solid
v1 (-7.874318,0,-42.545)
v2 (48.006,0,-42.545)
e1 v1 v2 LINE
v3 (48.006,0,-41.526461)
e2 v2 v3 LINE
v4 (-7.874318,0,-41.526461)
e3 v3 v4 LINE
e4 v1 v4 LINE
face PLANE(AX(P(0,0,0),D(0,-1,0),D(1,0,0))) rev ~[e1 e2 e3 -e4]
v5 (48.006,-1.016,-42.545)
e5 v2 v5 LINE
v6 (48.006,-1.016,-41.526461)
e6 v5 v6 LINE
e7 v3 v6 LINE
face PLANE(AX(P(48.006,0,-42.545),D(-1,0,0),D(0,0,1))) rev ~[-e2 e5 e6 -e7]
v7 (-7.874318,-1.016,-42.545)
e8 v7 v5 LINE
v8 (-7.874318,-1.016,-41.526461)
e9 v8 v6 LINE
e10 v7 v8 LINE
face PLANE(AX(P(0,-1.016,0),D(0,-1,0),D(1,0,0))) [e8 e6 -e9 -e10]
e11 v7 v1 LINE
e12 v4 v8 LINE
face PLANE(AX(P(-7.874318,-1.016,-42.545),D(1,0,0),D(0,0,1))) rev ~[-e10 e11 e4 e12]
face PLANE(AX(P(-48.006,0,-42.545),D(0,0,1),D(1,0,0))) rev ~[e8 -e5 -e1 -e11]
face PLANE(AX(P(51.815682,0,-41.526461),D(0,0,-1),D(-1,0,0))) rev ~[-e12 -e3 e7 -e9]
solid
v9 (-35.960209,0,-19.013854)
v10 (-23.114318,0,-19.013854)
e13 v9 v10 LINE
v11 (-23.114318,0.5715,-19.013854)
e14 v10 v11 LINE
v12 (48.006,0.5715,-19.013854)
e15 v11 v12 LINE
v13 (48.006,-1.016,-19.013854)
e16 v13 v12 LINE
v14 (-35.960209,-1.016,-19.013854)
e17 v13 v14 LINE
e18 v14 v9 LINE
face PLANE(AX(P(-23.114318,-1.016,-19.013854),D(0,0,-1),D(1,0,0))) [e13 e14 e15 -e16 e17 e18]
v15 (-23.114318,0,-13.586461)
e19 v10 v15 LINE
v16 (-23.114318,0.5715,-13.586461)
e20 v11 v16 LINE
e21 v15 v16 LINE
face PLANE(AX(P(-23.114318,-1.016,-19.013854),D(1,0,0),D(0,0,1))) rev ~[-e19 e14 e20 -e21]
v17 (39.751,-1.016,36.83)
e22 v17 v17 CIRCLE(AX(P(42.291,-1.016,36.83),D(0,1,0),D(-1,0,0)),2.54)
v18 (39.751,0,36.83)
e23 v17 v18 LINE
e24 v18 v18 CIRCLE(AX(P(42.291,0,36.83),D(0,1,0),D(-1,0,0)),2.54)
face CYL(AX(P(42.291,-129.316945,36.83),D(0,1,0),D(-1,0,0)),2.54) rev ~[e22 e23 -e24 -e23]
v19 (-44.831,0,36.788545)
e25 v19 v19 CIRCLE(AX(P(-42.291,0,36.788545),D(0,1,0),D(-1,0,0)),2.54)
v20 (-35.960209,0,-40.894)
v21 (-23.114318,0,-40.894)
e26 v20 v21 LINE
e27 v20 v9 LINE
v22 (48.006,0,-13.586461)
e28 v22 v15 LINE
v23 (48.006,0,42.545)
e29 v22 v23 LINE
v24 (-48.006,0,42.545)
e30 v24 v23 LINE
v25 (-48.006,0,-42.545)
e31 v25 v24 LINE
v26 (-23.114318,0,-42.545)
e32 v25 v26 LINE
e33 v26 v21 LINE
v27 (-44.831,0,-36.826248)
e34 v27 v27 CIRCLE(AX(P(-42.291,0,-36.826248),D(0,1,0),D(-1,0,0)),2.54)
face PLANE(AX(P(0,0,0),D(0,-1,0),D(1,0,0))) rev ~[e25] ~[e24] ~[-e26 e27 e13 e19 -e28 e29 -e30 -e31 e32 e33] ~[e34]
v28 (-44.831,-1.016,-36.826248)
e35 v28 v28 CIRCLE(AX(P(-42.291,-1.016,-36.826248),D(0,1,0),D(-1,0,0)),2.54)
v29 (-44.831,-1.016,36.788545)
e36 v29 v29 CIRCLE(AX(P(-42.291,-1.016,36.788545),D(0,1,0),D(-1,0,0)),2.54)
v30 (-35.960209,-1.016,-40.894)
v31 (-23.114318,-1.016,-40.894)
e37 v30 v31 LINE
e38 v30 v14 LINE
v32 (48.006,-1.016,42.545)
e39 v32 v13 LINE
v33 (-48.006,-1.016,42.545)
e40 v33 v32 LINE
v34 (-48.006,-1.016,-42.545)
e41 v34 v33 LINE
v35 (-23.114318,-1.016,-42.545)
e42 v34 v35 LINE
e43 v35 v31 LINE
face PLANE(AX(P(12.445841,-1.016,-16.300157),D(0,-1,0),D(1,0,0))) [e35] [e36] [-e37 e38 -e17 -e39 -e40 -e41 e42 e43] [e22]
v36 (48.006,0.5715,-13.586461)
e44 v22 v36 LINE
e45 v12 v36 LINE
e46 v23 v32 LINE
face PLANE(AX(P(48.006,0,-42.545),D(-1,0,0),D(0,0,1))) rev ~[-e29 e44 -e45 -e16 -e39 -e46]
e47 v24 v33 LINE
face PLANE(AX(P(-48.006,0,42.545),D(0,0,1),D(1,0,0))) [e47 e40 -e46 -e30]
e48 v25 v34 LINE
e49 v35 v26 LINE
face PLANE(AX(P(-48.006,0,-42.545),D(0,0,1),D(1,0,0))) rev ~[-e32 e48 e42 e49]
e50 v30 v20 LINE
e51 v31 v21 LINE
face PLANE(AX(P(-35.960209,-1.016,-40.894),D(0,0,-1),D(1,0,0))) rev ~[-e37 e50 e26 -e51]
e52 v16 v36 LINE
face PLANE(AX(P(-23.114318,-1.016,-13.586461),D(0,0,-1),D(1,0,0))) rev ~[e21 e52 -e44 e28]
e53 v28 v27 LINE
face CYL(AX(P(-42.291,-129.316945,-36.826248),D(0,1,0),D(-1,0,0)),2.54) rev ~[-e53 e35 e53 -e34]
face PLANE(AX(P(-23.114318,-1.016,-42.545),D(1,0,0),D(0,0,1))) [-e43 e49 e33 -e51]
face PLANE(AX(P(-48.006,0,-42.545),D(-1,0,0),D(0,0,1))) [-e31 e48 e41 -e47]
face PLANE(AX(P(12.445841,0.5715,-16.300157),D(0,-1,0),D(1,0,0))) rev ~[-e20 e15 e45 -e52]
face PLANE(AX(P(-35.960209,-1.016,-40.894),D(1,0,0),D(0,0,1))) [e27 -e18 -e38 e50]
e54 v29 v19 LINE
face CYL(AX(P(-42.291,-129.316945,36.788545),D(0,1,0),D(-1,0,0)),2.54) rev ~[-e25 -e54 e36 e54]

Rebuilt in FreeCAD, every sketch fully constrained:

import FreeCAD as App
import Part
import Sketcher
from FreeCAD import Vector
Q = App.Units.Quantity


def add_polygon(sketch, points):
    """Adds a closed chain of lines whose ends are joined by coincident constraints."""
    first, n = sketch.GeometryCount, len(points)
    for a, b in zip(points, points[1:] + points[:1]):
        sketch.addGeometry(Part.LineSegment(App.Vector(*a, 0), App.Vector(*b, 0)), False)
    for i in range(n):
        sketch.addConstraint(Sketcher.Constraint("Coincident", first + i, 2, first + (i + 1) % n, 1))

doc = App.newDocument("Part")
params = doc.addObject("Spreadsheet::Sheet", "Params")
for row, (alias, value) in enumerate([
    ("sketch1_width", "3.78 in"),
    ("sketch1_height", "3.35 in"),
    ("pad1_length", "0.04 in"),
    ("sketch2_height", "1.1 in"),
    ("sketch2_width", "2.35 in"),
    ("pocket1_length", "1 in"),
    ("sketch3_width", "0.6 in"),
    ("pocket2_length", "1 in"),
    ("pad2_length", "0.0625 in"),
    ("pocket3_length", "0.125 in"),
    ("sketch6_diameter", "0.2 in"),
    ("hole_diameter", "0.2 in"),
], start=1):
    params.set(f"A{row}", alias)
    params.set(f"B{row}", "=" + value)
    params.setAlias(f"B{row}", alias)

body = doc.addObject("PartDesign::Body", "Body")
body.AllowCompound = True

# Sketch on XZ plane
sketch1 = body.newObject("Sketcher::SketchObject", "Sketch")
sketch1.AttachmentSupport = (doc.getObject("XZ_Plane"), [""])
sketch1.MapMode = "FlatFace"
add_polygon(sketch1, [(-48.006, 42.545), (-48.006, -42.545), (48.006, -42.545), (48.006, 42.545)])  # lines 0-3
sketch1.addConstraint(Sketcher.Constraint("Vertical", 0))
sketch1.addConstraint(Sketcher.Constraint("Horizontal", 1))
sketch1.addConstraint(Sketcher.Constraint("Vertical", 2))
sketch1.addConstraint(Sketcher.Constraint("Horizontal", 3))
sketch1.addConstraint(Sketcher.Constraint("Symmetric", 0, 2, 2, 2, -1, 1))
sketch1.addConstraint(Sketcher.Constraint("DistanceX", 1, 1, 1, 2, Q("3.78 in")))
sketch1.addConstraint(Sketcher.Constraint("DistanceY", 0, 2, 0, 1, Q("3.35 in")))
sketch1.setExpression("Constraints[9]", "Params.sketch1_width")
sketch1.setExpression("Constraints[10]", "Params.sketch1_height")
pad1 = body.newObject("PartDesign::Pad", "Pad")
pad1.Profile = sketch1
pad1.setExpression("Length", "Params.pad1_length")

# Sketch on XZ plane
sketch2 = body.newObject("Sketcher::SketchObject", "Sketch001")
sketch2.AttachmentSupport = (doc.getObject("XZ_Plane"), [""])
sketch2.MapMode = "FlatFace"
add_polygon(sketch2, [(51.815682, -13.586461), (51.815682, -41.526461), (-7.874318, -41.526461), (-7.874318, -13.586461)])  # lines 0-3
sketch2.addConstraint(Sketcher.Constraint("Vertical", 0))
sketch2.addConstraint(Sketcher.Constraint("Horizontal", 1))
sketch2.addConstraint(Sketcher.Constraint("Vertical", 2))
sketch2.addConstraint(Sketcher.Constraint("Horizontal", 3))
sketch2.addConstraint(Sketcher.Constraint("DistanceY", 0, 2, 0, 1, Q("1.1 in")))
sketch2.addConstraint(Sketcher.Constraint("DistanceX", 1, 2, 1, 1, Q("2.35 in")))
sketch2.addConstraint(Sketcher.Constraint("DistanceY", 0, 2, -1, 1, Q("1.6349 in")))
sketch2.addConstraint(Sketcher.Constraint("DistanceX", -1, 1, 0, 2, 51.815682))
sketch2.setExpression("Constraints[8]", "Params.sketch2_height")
sketch2.setExpression("Constraints[9]", "Params.sketch2_width")
pocket1 = body.newObject("PartDesign::Pocket", "Pocket")
pocket1.Profile = sketch2
pocket1.setExpression("Length", "Params.pocket1_length")
pocket1.Reversed = True

# Sketch on XZ plane
sketch3 = body.newObject("Sketcher::SketchObject", "Sketch002")
sketch3.AttachmentSupport = (doc.getObject("XZ_Plane"), [""])
sketch3.MapMode = "FlatFace"
sketch3.AttachmentOffset = App.Placement(Vector(0, 0, 0.04 * 25.4), App.Rotation())
add_polygon(sketch3, [(-23.114318, -13.586461), (-23.114318, -42.545), (-7.874318, -42.545), (-7.874318, -13.586461)])  # lines 0-3
sketch3.addConstraint(Sketcher.Constraint("Vertical", 0))
sketch3.addConstraint(Sketcher.Constraint("Horizontal", 1))
sketch3.addConstraint(Sketcher.Constraint("Vertical", 2))
sketch3.addConstraint(Sketcher.Constraint("Horizontal", 3))
sketch3.addConstraint(Sketcher.Constraint("DistanceX", 1, 1, 1, 2, Q("0.6 in")))
sketch3.addConstraint(Sketcher.Constraint("DistanceY", 0, 2, 0, 1, Q("1.1401 in")))
sketch3.addConstraint(Sketcher.Constraint("DistanceY", 0, 2, -1, 1, Q("1.675 in")))
sketch3.addConstraint(Sketcher.Constraint("DistanceX", 0, 2, -1, 1, 23.114318))
sketch3.setExpression("Constraints[8]", "Params.sketch3_width")
pocket2 = body.newObject("PartDesign::Pocket", "Pocket001")
pocket2.Profile = sketch3
pocket2.setExpression("Length", "Params.pocket2_length")

# Sketch on XZ plane
sketch4 = body.newObject("Sketcher::SketchObject", "Sketch003")
sketch4.AttachmentSupport = (doc.getObject("XZ_Plane"), [""])
sketch4.MapMode = "FlatFace"
sketch4.AttachmentOffset = App.Placement(Vector(0, 0, 0.04 * 25.4), App.Rotation())
add_polygon(sketch4, [(-23.114318, -13.586461), (-23.114318, -19.013854), (48.006, -19.013854), (48.006, -13.586461)])  # lines 0-3
sketch4.addConstraint(Sketcher.Constraint("Vertical", 0))
sketch4.addConstraint(Sketcher.Constraint("Horizontal", 1))
sketch4.addConstraint(Sketcher.Constraint("Vertical", 2))
sketch4.addConstraint(Sketcher.Constraint("Horizontal", 3))
sketch4.addConstraint(Sketcher.Constraint("DistanceX", -1, 1, 1, 2, Q("1.89 in")))
sketch4.addConstraint(Sketcher.Constraint("DistanceY", 2, 2, -1, 1, Q("0.5349 in")))
sketch4.addConstraint(Sketcher.Constraint("DistanceX", 1, 1, 1, 2, 71.120318))
sketch4.addConstraint(Sketcher.Constraint("DistanceY", 0, 2, 0, 1, 5.427393))
pad2 = body.newObject("PartDesign::Pad", "Pad001")
pad2.Profile = sketch4
pad2.setExpression("Length", "Params.pad2_length")
pad2.Reversed = True

# Sketch on XZ plane
sketch5 = body.newObject("Sketcher::SketchObject", "Sketch004")
sketch5.AttachmentSupport = (doc.getObject("XZ_Plane"), [""])
sketch5.MapMode = "FlatFace"
sketch5.AttachmentOffset = App.Placement(Vector(0, 0, 0.04 * 25.4), App.Rotation())
add_polygon(sketch5, [(-35.960209, -19.013854), (-35.960209, -40.894), (-23.114318, -40.894), (-23.114318, -19.013854)])  # lines 0-3
sketch5.addConstraint(Sketcher.Constraint("Vertical", 0))
sketch5.addConstraint(Sketcher.Constraint("Horizontal", 1))
sketch5.addConstraint(Sketcher.Constraint("Vertical", 2))
sketch5.addConstraint(Sketcher.Constraint("Horizontal", 3))
sketch5.addConstraint(Sketcher.Constraint("DistanceY", 0, 2, -1, 1, Q("1.61 in")))
sketch5.addConstraint(Sketcher.Constraint("DistanceX", 1, 1, 1, 2, 12.845891))
sketch5.addConstraint(Sketcher.Constraint("DistanceY", 0, 2, 0, 1, 21.880146))
sketch5.addConstraint(Sketcher.Constraint("DistanceX", 0, 2, -1, 1, 35.960209))
pocket3 = body.newObject("PartDesign::Pocket", "Pocket002")
pocket3.Profile = sketch5
pocket3.setExpression("Length", "Params.pocket3_length")

# Sketch on XZ plane
sketch6 = body.newObject("Sketcher::SketchObject", "Sketch005")
sketch6.AttachmentSupport = (doc.getObject("XZ_Plane"), [""])
sketch6.MapMode = "FlatFace"
sketch6.AttachmentOffset = App.Placement(Vector(0, 0, 0.04 * 25.4), App.Rotation())
sketch6.addGeometry(Part.Circle(Vector(-42.291, 36.788545, 0), Vector(0, 0, 1), 2.54), False)
sketch6.addGeometry(Part.Circle(Vector(-42.291, -36.826248, 0), Vector(0, 0, 1), 2.54), False)
sketch6.addGeometry(Part.Circle(Vector(42.291, 36.83, 0), Vector(0, 0, 1), 2.54), False)
sketch6.addConstraint(Sketcher.Constraint("Equal", 0, 1))
sketch6.addConstraint(Sketcher.Constraint("Equal", 1, 2))
sketch6.addConstraint(Sketcher.Constraint("Vertical", 0, 3, 1, 3))
sketch6.addConstraint(Sketcher.Constraint("Diameter", 0, Q("0.2 in")))
sketch6.addConstraint(Sketcher.Constraint("DistanceY", -1, 1, 2, 3, Q("1.45 in")))
sketch6.addConstraint(Sketcher.Constraint("DistanceX", 0, 3, 2, 3, Q("3.33 in")))
sketch6.addConstraint(Sketcher.Constraint("DistanceX", 0, 3, -1, 1, Q("1.665 in")))
sketch6.addConstraint(Sketcher.Constraint("DistanceY", 1, 3, -1, 1, 36.826248))
sketch6.addConstraint(Sketcher.Constraint("DistanceY", -1, 1, 0, 3, 36.788545))
sketch6.setExpression("Constraints[3]", "Params.sketch6_diameter")
doc.recompute()
hole = body.newObject("PartDesign::Hole", "Hole")
hole.Profile = sketch6
hole.ThreadType = "None"
hole.setExpression("Diameter", "Params.hole_diameter")
hole.DepthType = "ThroughAll"

doc.recompute()
